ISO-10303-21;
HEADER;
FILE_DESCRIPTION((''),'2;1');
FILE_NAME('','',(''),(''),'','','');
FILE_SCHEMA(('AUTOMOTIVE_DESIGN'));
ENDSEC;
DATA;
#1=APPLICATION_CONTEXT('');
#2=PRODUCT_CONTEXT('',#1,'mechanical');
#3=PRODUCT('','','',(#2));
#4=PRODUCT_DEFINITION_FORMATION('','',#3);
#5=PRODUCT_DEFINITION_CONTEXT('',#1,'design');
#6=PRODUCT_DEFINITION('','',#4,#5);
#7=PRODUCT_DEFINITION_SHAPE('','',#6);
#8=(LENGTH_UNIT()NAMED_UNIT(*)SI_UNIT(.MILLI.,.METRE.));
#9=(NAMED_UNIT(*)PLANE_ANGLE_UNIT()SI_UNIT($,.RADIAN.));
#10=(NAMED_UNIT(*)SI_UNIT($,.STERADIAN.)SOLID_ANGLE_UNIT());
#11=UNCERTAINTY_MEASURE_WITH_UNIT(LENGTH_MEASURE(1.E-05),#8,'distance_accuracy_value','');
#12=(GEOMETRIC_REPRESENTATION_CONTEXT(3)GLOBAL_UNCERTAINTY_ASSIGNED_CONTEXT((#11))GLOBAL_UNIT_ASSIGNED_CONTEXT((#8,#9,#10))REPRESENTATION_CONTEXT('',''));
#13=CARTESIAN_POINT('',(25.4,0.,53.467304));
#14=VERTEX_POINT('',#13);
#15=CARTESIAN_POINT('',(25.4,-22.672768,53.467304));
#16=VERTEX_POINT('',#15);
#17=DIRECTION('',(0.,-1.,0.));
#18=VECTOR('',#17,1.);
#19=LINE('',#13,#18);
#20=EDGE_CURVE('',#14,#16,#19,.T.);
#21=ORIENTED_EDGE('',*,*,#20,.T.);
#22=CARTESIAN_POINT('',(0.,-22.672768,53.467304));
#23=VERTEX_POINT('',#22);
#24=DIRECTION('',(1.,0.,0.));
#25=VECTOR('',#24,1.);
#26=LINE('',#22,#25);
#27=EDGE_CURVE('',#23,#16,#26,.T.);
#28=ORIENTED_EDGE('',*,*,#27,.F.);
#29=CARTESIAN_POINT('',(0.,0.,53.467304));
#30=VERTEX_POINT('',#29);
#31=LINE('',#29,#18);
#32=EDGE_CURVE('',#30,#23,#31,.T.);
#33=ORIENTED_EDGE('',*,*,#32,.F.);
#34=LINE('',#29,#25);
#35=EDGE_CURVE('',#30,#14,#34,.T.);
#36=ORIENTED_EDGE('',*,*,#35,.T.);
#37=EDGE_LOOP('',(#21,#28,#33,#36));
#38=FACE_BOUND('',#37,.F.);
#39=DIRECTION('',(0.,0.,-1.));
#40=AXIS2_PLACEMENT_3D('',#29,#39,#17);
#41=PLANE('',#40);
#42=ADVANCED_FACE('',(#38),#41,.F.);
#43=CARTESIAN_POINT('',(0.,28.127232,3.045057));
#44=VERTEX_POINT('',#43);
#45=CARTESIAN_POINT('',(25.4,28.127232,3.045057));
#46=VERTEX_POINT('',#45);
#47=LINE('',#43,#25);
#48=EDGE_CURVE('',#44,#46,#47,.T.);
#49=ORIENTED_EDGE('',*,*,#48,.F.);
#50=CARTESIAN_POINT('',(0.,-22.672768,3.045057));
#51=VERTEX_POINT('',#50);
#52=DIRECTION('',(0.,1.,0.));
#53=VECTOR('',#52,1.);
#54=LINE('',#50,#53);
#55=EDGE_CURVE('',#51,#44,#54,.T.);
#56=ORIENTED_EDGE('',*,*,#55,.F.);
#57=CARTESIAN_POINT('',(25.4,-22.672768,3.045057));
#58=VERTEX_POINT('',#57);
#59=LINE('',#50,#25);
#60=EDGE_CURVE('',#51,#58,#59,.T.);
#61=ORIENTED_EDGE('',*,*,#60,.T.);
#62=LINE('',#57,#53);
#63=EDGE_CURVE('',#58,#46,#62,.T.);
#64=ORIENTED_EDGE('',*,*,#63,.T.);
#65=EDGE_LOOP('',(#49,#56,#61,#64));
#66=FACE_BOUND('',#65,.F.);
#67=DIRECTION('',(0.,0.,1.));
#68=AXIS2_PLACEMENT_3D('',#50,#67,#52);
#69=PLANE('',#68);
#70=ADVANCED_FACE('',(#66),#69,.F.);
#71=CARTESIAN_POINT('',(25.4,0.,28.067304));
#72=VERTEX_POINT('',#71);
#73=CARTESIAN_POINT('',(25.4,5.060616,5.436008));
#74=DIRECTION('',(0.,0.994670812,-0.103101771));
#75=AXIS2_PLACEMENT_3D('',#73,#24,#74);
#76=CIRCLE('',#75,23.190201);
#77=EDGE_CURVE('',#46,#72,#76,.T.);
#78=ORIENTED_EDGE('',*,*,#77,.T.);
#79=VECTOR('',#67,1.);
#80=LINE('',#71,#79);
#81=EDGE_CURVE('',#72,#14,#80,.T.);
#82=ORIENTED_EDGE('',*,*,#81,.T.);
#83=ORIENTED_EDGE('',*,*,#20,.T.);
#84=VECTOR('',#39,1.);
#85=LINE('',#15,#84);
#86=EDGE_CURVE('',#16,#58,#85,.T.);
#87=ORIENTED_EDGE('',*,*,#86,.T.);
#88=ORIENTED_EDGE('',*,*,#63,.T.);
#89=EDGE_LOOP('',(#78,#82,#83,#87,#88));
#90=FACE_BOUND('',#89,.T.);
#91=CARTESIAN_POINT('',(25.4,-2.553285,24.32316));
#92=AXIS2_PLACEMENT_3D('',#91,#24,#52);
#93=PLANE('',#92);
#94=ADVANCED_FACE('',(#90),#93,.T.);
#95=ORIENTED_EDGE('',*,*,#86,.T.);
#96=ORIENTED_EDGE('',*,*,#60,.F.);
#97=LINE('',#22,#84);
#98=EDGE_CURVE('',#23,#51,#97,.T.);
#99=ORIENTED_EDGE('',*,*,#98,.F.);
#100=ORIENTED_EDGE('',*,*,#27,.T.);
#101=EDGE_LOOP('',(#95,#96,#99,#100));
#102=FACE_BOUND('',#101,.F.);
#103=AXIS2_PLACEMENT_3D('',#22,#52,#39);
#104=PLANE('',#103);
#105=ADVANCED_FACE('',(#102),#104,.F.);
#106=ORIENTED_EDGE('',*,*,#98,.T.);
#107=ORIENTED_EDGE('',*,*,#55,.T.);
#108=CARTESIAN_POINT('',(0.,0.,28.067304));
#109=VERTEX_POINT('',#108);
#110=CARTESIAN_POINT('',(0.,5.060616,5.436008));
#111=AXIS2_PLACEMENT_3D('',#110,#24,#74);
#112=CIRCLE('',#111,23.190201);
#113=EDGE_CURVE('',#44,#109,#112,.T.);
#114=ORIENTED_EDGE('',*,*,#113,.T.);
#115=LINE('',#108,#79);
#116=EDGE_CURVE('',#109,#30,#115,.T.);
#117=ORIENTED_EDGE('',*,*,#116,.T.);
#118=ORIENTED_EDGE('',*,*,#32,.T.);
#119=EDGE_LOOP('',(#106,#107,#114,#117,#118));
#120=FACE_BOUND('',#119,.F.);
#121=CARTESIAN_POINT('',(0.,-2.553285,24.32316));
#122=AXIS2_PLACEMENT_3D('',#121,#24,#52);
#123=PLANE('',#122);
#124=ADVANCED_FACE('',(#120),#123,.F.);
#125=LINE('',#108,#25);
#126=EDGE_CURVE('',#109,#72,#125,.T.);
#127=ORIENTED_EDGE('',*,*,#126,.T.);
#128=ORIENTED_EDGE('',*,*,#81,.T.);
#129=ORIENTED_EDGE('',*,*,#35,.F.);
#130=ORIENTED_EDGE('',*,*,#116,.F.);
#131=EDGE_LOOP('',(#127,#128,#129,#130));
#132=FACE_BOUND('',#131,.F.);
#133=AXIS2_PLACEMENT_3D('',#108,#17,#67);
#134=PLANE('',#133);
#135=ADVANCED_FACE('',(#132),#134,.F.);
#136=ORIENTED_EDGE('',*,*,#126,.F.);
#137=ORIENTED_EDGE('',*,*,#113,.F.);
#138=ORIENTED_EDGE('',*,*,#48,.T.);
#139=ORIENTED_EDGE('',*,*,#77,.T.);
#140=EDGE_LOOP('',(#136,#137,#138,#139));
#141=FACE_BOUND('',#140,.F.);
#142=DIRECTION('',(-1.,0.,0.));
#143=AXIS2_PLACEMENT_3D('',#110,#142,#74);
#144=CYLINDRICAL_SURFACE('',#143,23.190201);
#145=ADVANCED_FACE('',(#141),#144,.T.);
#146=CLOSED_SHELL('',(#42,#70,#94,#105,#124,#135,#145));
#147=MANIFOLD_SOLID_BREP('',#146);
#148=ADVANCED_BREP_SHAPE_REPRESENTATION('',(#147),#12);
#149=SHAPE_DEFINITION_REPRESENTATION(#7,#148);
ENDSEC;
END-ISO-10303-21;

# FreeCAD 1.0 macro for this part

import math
import FreeCAD as App
import Part
import Sketcher
from FreeCAD import Vector
Q = App.Units.Quantity

doc = App.newDocument("Part")
body = doc.addObject("PartDesign::Body", "Body")

sketch1 = doc.addObject("Sketcher::SketchObject", "Sketch")
body.addObject(sketch1)
sketch1.AttachmentSupport = (doc.YZ_Plane, [""])
sketch1.MapMode = "FlatFace"
sketch1.addGeometry([
    Part.LineSegment(Vector(0, 53, 0), Vector(-23, 53, 0)),
    Part.LineSegment(Vector(-23, 53, 0), Vector(-23, 3, 0)),
    Part.LineSegment(Vector(-23, 3, 0), Vector(28, 3, 0)),
    Part.ArcOfCircle(Part.Circle(Vector(5, 5, 0), Vector(0, 0, 1), 23), math.radians(-6), math.radians(103)),
    Part.LineSegment(Vector(0, 28, 0), Vector(0, 53, 0)),
], False)
sketch1.addConstraint([
    Sketcher.Constraint("Coincident", 0, 2, 1, 1),
    Sketcher.Constraint("Coincident", 1, 2, 2, 1),
    Sketcher.Constraint("Coincident", 2, 2, 3, 1),
    Sketcher.Constraint("Coincident", 3, 2, 4, 1),
    Sketcher.Constraint("Coincident", 4, 2, 0, 1),
    Sketcher.Constraint("Horizontal", 0),
    Sketcher.Constraint("Vertical", 1),
    Sketcher.Constraint("Horizontal", 2),
    Sketcher.Constraint("Vertical", 4),
    Sketcher.Constraint("PointOnObject", 3, 2, -2),
    Sketcher.Constraint("DistanceX", 2, 1, 2, 2, Q("2 in")),
    Sketcher.Constraint("DistanceY", 4, 1, 4, 2, Q("1 in")),
    Sketcher.Constraint("Radius", 3, Q("0.913 in")),
    Sketcher.Constraint("DistanceX", 0, 2, 0, 1, 22.672768),
    Sketcher.Constraint("DistanceY", 1, 2, 1, 1, 50.422247),
    Sketcher.Constraint("DistanceY", -1, 1, 3, 3, 5.436008),
])
pad1 = doc.addObject("PartDesign::Pad", "Pad")
body.addObject(pad1)
pad1.Profile = sketch1
pad1.Length = Q("1 in")

doc.recompute()
